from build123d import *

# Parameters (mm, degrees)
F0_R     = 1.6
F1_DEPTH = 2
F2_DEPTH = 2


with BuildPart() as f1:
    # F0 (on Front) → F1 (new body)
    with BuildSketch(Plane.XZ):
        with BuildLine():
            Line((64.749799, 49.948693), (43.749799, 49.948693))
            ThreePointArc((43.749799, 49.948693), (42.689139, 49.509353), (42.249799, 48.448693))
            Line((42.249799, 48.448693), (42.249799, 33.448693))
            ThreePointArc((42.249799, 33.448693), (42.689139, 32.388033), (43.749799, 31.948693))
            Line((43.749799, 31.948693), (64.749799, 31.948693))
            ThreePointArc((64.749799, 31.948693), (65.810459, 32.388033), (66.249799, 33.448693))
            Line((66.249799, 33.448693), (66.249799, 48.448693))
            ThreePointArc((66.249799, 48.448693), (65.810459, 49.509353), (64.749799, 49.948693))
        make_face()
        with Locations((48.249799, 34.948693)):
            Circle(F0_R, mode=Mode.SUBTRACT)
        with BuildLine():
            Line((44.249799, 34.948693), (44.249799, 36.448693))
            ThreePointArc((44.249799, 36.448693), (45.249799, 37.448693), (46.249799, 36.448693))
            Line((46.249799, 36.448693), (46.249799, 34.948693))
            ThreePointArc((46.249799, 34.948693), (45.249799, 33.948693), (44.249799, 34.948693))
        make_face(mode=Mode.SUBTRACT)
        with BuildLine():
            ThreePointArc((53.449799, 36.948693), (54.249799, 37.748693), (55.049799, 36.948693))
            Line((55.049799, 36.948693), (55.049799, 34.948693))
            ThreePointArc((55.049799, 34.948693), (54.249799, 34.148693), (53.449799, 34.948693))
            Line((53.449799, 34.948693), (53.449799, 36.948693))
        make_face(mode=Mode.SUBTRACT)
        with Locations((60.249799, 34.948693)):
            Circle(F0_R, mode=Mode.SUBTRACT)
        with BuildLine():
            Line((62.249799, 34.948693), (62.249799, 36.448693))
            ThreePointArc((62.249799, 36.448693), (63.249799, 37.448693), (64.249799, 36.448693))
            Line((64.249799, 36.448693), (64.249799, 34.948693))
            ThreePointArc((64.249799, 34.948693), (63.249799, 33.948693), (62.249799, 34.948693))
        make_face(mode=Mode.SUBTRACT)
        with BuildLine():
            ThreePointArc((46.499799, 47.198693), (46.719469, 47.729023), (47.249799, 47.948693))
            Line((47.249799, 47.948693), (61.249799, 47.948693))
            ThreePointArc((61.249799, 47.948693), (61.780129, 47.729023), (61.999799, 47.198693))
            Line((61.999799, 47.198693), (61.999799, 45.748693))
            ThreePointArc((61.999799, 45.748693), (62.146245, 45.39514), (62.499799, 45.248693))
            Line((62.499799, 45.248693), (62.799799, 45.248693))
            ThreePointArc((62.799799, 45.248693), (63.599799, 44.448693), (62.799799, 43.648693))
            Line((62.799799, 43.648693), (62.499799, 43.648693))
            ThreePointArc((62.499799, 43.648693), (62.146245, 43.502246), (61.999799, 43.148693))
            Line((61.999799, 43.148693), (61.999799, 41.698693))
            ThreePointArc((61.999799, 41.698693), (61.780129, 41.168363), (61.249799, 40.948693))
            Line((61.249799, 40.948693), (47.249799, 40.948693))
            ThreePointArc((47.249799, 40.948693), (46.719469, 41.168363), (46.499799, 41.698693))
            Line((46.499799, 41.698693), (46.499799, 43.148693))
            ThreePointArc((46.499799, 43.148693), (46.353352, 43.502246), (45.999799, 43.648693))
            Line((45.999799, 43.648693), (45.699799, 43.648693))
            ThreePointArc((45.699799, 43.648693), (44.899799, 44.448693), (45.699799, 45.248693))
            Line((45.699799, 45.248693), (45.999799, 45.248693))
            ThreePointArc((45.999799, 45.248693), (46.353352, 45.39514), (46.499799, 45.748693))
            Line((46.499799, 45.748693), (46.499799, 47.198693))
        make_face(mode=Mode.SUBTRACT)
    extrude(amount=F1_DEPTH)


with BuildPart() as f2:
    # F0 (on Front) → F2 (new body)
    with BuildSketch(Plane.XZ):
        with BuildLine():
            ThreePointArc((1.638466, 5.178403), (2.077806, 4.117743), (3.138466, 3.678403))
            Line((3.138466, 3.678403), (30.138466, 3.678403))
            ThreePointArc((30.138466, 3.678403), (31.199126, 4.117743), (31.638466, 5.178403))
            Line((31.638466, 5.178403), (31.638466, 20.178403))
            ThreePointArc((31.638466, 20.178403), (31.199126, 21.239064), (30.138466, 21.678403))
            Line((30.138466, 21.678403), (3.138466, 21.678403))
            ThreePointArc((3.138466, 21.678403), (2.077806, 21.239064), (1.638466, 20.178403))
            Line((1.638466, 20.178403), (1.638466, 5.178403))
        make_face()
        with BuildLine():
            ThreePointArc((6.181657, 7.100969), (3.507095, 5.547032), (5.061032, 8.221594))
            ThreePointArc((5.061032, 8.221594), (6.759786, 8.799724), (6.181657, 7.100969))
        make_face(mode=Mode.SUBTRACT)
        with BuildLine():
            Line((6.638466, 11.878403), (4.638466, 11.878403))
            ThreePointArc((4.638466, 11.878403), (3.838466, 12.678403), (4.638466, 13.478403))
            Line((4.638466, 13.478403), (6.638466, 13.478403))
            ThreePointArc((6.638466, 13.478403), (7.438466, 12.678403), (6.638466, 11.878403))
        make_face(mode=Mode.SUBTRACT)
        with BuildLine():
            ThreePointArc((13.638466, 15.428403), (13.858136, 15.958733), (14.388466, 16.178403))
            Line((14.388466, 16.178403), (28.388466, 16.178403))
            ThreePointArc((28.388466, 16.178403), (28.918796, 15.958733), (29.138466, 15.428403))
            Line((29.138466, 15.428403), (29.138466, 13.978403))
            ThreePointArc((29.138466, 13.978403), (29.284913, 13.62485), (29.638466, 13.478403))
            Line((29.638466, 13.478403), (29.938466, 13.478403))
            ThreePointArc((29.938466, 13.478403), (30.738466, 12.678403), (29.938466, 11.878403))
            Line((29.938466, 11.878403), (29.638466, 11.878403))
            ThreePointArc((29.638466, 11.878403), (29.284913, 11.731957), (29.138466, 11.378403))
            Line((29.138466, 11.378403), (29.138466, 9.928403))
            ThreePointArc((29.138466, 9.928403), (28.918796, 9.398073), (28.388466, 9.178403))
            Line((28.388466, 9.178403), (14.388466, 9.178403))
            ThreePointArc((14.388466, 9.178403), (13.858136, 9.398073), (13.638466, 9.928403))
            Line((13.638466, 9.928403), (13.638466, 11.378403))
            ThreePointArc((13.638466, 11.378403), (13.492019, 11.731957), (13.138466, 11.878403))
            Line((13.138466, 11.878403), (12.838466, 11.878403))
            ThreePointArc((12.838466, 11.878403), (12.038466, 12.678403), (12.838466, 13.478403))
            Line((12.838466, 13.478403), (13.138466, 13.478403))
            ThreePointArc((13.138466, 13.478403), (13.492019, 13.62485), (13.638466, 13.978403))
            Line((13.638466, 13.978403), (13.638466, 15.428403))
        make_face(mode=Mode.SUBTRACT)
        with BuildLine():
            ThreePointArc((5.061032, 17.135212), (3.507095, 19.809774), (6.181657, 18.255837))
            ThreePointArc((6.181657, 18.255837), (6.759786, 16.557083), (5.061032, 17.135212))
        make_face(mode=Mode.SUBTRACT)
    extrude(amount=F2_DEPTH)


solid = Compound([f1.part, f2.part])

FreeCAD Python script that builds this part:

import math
import FreeCAD as App
import Part
import Sketcher
Q = App.Units.Quantity

doc = App.newDocument("Part")
body = doc.addObject("PartDesign::Body", "Body")

# Sketch on XZ plane
sketch1 = body.newObject("Sketcher::SketchObject", "Sketch")
sketch1.AttachmentSupport = (doc.getObject("XZ_Plane"), [""])
sketch1.MapMode = "FlatFace"
sketch1.addGeometry(Part.LineSegment(App.Vector(64.749799, 49.948693, 0), App.Vector(43.749799, 49.948693, 0)), False)
sketch1.addGeometry(Part.ArcOfCircle(Part.Circle(App.Vector(43.7498, 48.448692, 0), App.Vector(0, 0, 1), 1.500001), math.radians(90.000022), math.radians(179.999978)), False)
sketch1.addGeometry(Part.LineSegment(App.Vector(42.249799, 48.448693, 0), App.Vector(42.249799, 33.448693, 0)), False)
sketch1.addGeometry(Part.ArcOfCircle(Part.Circle(App.Vector(43.7498, 33.448694, 0), App.Vector(0, 0, 1), 1.500001), math.radians(-179.999978), math.radians(-90.000022)), False)
sketch1.addGeometry(Part.LineSegment(App.Vector(43.749799, 31.948693, 0), App.Vector(64.749799, 31.948693, 0)), False)
sketch1.addGeometry(Part.ArcOfCircle(Part.Circle(App.Vector(64.749798, 33.448694, 0), App.Vector(0, 0, 1), 1.500001), math.radians(-89.999978), math.radians(-0.000022)), False)
sketch1.addGeometry(Part.LineSegment(App.Vector(66.249799, 33.448693, 0), App.Vector(66.249799, 48.448693, 0)), False)
sketch1.addGeometry(Part.ArcOfCircle(Part.Circle(App.Vector(64.749798, 48.448692, 0), App.Vector(0, 0, 1), 1.500001), math.radians(0.000022), math.radians(89.999978)), False)
sketch1.addGeometry(Part.Circle(App.Vector(48.249799, 34.948693, 0), App.Vector(0, 0, 1), 1.6), False)
sketch1.addGeometry(Part.ArcOfCircle(Part.Circle(App.Vector(45.249799, 34.948693, 0), App.Vector(0, 0, 1), 1), math.radians(180), math.radians(360)), False)
sketch1.addGeometry(Part.LineSegment(App.Vector(44.249799, 34.948693, 0), App.Vector(44.249799, 36.448693, 0)), False)
sketch1.addGeometry(Part.ArcOfCircle(Part.Circle(App.Vector(45.249799, 36.448693, 0), App.Vector(0, 0, 1), 1), math.radians(0), math.radians(180)), False)
sketch1.addGeometry(Part.LineSegment(App.Vector(46.249799, 36.448693, 0), App.Vector(46.249799, 34.948693, 0)), False)
sketch1.addGeometry(Part.LineSegment(App.Vector(53.449799, 34.948693, 0), App.Vector(53.449799, 36.948693, 0)), False)
sketch1.addGeometry(Part.ArcOfCircle(Part.Circle(App.Vector(54.249799, 36.948693, 0), App.Vector(0, 0, 1), 0.8), math.radians(0), math.radians(180)), False)
sketch1.addGeometry(Part.LineSegment(App.Vector(55.049799, 36.948693, 0), App.Vector(55.049799, 34.948693, 0)), False)
sketch1.addGeometry(Part.ArcOfCircle(Part.Circle(App.Vector(54.249799, 34.948693, 0), App.Vector(0, 0, 1), 0.8), math.radians(180), math.radians(360)), False)
sketch1.addGeometry(Part.Circle(App.Vector(60.249799, 34.948693, 0), App.Vector(0, 0, 1), 1.6), False)
sketch1.addGeometry(Part.ArcOfCircle(Part.Circle(App.Vector(63.249799, 34.948693, 0), App.Vector(0, 0, 1), 1), math.radians(180), math.radians(360)), False)
sketch1.addGeometry(Part.LineSegment(App.Vector(62.249799, 34.948693, 0), App.Vector(62.249799, 36.448693, 0)), False)
sketch1.addGeometry(Part.ArcOfCircle(Part.Circle(App.Vector(63.249799, 36.448693, 0), App.Vector(0, 0, 1), 1), math.radians(0), math.radians(180)), False)
sketch1.addGeometry(Part.LineSegment(App.Vector(64.249799, 36.448693, 0), App.Vector(64.249799, 34.948693, 0)), False)
sketch1.addGeometry(Part.LineSegment(App.Vector(46.499799, 45.748693, 0), App.Vector(46.499799, 47.198693, 0)), False)
sketch1.addGeometry(Part.ArcOfCircle(Part.Circle(App.Vector(47.249799, 47.198693, 0), App.Vector(0, 0, 1), 0.75), math.radians(90.000022), math.radians(179.999978)), False)
sketch1.addGeometry(Part.LineSegment(App.Vector(47.249799, 47.948693, 0), App.Vector(61.249799, 47.948693, 0)), False)
sketch1.addGeometry(Part.ArcOfCircle(Part.Circle(App.Vector(61.249799, 47.198693, 0), App.Vector(0, 0, 1), 0.75), math.radians(0.000022), math.radians(89.999978)), False)
sketch1.addGeometry(Part.LineSegment(App.Vector(61.999799, 47.198693, 0), App.Vector(61.999799, 45.748693, 0)), False)
sketch1.addGeometry(Part.ArcOfCircle(Part.Circle(App.Vector(62.499799, 45.748693, 0), App.Vector(0, 0, 1), 0.5), math.radians(179.999957), math.radians(270.000043)), False)
sketch1.addGeometry(Part.LineSegment(App.Vector(62.499799, 45.248693, 0), App.Vector(62.799799, 45.248693, 0)), False)
sketch1.addGeometry(Part.ArcOfCircle(Part.Circle(App.Vector(62.799799, 44.448693, 0), App.Vector(0, 0, 1), 0.8), math.radians(-90), math.radians(90)), False)
sketch1.addGeometry(Part.LineSegment(App.Vector(62.799799, 43.648693, 0), App.Vector(62.499799, 43.648693, 0)), False)
sketch1.addGeometry(Part.ArcOfCircle(Part.Circle(App.Vector(62.499799, 43.148693, 0), App.Vector(0, 0, 1), 0.5), math.radians(89.999957), math.radians(180.000043)), False)
sketch1.addGeometry(Part.LineSegment(App.Vector(61.999799, 43.148693, 0), App.Vector(61.999799, 41.698693, 0)), False)
sketch1.addGeometry(Part.ArcOfCircle(Part.Circle(App.Vector(61.249799, 41.698693, 0), App.Vector(0, 0, 1), 0.75), math.radians(-89.999978), math.radians(-0.000022)), False)
sketch1.addGeometry(Part.LineSegment(App.Vector(61.249799, 40.948693, 0), App.Vector(47.249799, 40.948693, 0)), False)
sketch1.addGeometry(Part.ArcOfCircle(Part.Circle(App.Vector(47.249799, 41.698693, 0), App.Vector(0, 0, 1), 0.75), math.radians(-179.999978), math.radians(-90.000022)), False)
sketch1.addGeometry(Part.LineSegment(App.Vector(46.499799, 41.698693, 0), App.Vector(46.499799, 43.148693, 0)), False)
sketch1.addGeometry(Part.ArcOfCircle(Part.Circle(App.Vector(45.999798, 43.148692, 0), App.Vector(0, 0, 1), 0.500001), math.radians(0.000153), math.radians(89.999847)), False)
sketch1.addGeometry(Part.LineSegment(App.Vector(45.999799, 43.648693, 0), App.Vector(45.699799, 43.648693, 0)), False)
sketch1.addGeometry(Part.ArcOfCircle(Part.Circle(App.Vector(45.699799, 44.448693, 0), App.Vector(0, 0, 1), 0.8), math.radians(90), math.radians(270)), False)
sketch1.addGeometry(Part.LineSegment(App.Vector(45.699799, 45.248693, 0), App.Vector(45.999799, 45.248693, 0)), False)
sketch1.addGeometry(Part.ArcOfCircle(Part.Circle(App.Vector(45.999798, 45.748694, 0), App.Vector(0, 0, 1), 0.500001), math.radians(-89.999847), math.radians(-0.000153)), False)
sketch1.addConstraint(Sketcher.Constraint("Tangent", 0, 2, 1, 1))
sketch1.addConstraint(Sketcher.Constraint("Tangent", 1, 2, 2, 1))
sketch1.addConstraint(Sketcher.Constraint("Tangent", 2, 2, 3, 1))
sketch1.addConstraint(Sketcher.Constraint("Tangent", 3, 2, 4, 1))
sketch1.addConstraint(Sketcher.Constraint("Tangent", 4, 2, 5, 1))
sketch1.addConstraint(Sketcher.Constraint("Tangent", 5, 2, 6, 1))
sketch1.addConstraint(Sketcher.Constraint("Tangent", 6, 2, 7, 1))
sketch1.addConstraint(Sketcher.Constraint("Tangent", 7, 2, 0, 1))
sketch1.addConstraint(Sketcher.Constraint("Tangent", 9, 1, 10, 1))
sketch1.addConstraint(Sketcher.Constraint("Tangent", 10, 2, 11, 2))
sketch1.addConstraint(Sketcher.Constraint("Tangent", 11, 1, 12, 1))
sketch1.addConstraint(Sketcher.Constraint("Tangent", 12, 2, 9, 2))
sketch1.addConstraint(Sketcher.Constraint("Tangent", 13, 2, 14, 2))
sketch1.addConstraint(Sketcher.Constraint("Tangent", 14, 1, 15, 1))
sketch1.addConstraint(Sketcher.Constraint("Tangent", 15, 2, 16, 2))
sketch1.addConstraint(Sketcher.Constraint("Tangent", 16, 1, 13, 1))
sketch1.addConstraint(Sketcher.Constraint("Tangent", 18, 1, 19, 1))
sketch1.addConstraint(Sketcher.Constraint("Tangent", 19, 2, 20, 2))
sketch1.addConstraint(Sketcher.Constraint("Tangent", 20, 1, 21, 1))
sketch1.addConstraint(Sketcher.Constraint("Tangent", 21, 2, 18, 2))
sketch1.addConstraint(Sketcher.Constraint("Tangent", 22, 2, 23, 2))
sketch1.addConstraint(Sketcher.Constraint("Tangent", 23, 1, 24, 1))
sketch1.addConstraint(Sketcher.Constraint("Tangent", 24, 2, 25, 2))
sketch1.addConstraint(Sketcher.Constraint("Tangent", 25, 1, 26, 1))
sketch1.addConstraint(Sketcher.Constraint("Tangent", 26, 2, 27, 1))
sketch1.addConstraint(Sketcher.Constraint("Tangent", 27, 2, 28, 1))
sketch1.addConstraint(Sketcher.Constraint("Tangent", 28, 2, 29, 2))
sketch1.addConstraint(Sketcher.Constraint("Tangent", 29, 1, 30, 1))
sketch1.addConstraint(Sketcher.Constraint("Tangent", 30, 2, 31, 1))
sketch1.addConstraint(Sketcher.Constraint("Tangent", 31, 2, 32, 1))
sketch1.addConstraint(Sketcher.Constraint("Tangent", 32, 2, 33, 2))
sketch1.addConstraint(Sketcher.Constraint("Tangent", 33, 1, 34, 1))
sketch1.addConstraint(Sketcher.Constraint("Tangent", 34, 2, 35, 2))
sketch1.addConstraint(Sketcher.Constraint("Tangent", 35, 1, 36, 1))
sketch1.addConstraint(Sketcher.Constraint("Coincident", 36, 2, 37, 1))
sketch1.addConstraint(Sketcher.Constraint("Coincident", 37, 2, 38, 1))
sketch1.addConstraint(Sketcher.Constraint("Tangent", 38, 2, 39, 2))
sketch1.addConstraint(Sketcher.Constraint("Tangent", 39, 1, 40, 1))
sketch1.addConstraint(Sketcher.Constraint("Coincident", 40, 2, 41, 1))
sketch1.addConstraint(Sketcher.Constraint("Coincident", 41, 2, 22, 1))
sketch1.addConstraint(Sketcher.Constraint("Horizontal", 0))
sketch1.addConstraint(Sketcher.Constraint("Vertical", 2))
sketch1.addConstraint(Sketcher.Constraint("Horizontal", 4))
sketch1.addConstraint(Sketcher.Constraint("Vertical", 6))
sketch1.addConstraint(Sketcher.Constraint("Vertical", 10))
sketch1.addConstraint(Sketcher.Constraint("Vertical", 12))
sketch1.addConstraint(Sketcher.Constraint("Vertical", 13))
sketch1.addConstraint(Sketcher.Constraint("Vertical", 15))
sketch1.addConstraint(Sketcher.Constraint("Vertical", 19))
sketch1.addConstraint(Sketcher.Constraint("Vertical", 21))
sketch1.addConstraint(Sketcher.Constraint("Vertical", 22))
sketch1.addConstraint(Sketcher.Constraint("Horizontal", 24))
sketch1.addConstraint(Sketcher.Constraint("Vertical", 26))
sketch1.addConstraint(Sketcher.Constraint("Horizontal", 28))
sketch1.addConstraint(Sketcher.Constraint("Horizontal", 30))
sketch1.addConstraint(Sketcher.Constraint("Vertical", 32))
sketch1.addConstraint(Sketcher.Constraint("Horizontal", 34))
sketch1.addConstraint(Sketcher.Constraint("Vertical", 36))
sketch1.addConstraint(Sketcher.Constraint("Horizontal", 38))
sketch1.addConstraint(Sketcher.Constraint("Horizontal", 40))
sketch1.addConstraint(Sketcher.Constraint("Equal", 1, 3))
sketch1.addConstraint(Sketcher.Constraint("Equal", 3, 5))
sketch1.addConstraint(Sketcher.Constraint("Equal", 5, 7))
sketch1.addConstraint(Sketcher.Constraint("Equal", 8, 17))
sketch1.addConstraint(Sketcher.Constraint("Equal", 11, 18))
sketch1.addConstraint(Sketcher.Constraint("Equal", 23, 25))
sketch1.addConstraint(Sketcher.Constraint("Equal", 16, 29))
sketch1.addConstraint(Sketcher.Constraint("Equal", 27, 31))
sketch1.addConstraint(Sketcher.Constraint("Equal", 25, 33))
sketch1.addConstraint(Sketcher.Constraint("Equal", 33, 35))
sketch1.addConstraint(Sketcher.Constraint("Equal", 31, 37))
sketch1.addConstraint(Sketcher.Constraint("Equal", 29, 39))
sketch1.addConstraint(Sketcher.Constraint("Equal", 37, 41))
sketch1.addConstraint(Sketcher.Constraint("Horizontal", 8, 3, 9, 3))
sketch1.addConstraint(Sketcher.Constraint("Horizontal", 9, 3, 16, 3))
sketch1.addConstraint(Sketcher.Constraint("Horizontal", 16, 3, 17, 3))
sketch1.addConstraint(Sketcher.Constraint("Horizontal", 17, 3, 18, 3))
sketch1.addConstraint(Sketcher.Constraint("Horizontal", 11, 3, 20, 3))
sketch1.addConstraint(Sketcher.Constraint("Horizontal", 31, 3, 37, 3))
sketch1.addConstraint(Sketcher.Constraint("Horizontal", 31, 2, 36, 2))
sketch1.addConstraint(Sketcher.Constraint("Horizontal", 26, 2, 41, 2))
sketch1.addConstraint(Sketcher.Constraint("Vertical", 27, 3, 31, 3))
sketch1.addConstraint(Sketcher.Constraint("Vertical", 23, 3, 35, 3))
sketch1.addConstraint(Sketcher.Constraint("Vertical", 41, 3, 37, 2))
sketch1.addConstraint(Sketcher.Constraint("Vertical", 37, 2, 40, 2))
sketch1.addConstraint(Sketcher.Constraint("Equal", 30, 38))
sketch1.addConstraint(Sketcher.Constraint("Equal", 26, 32))
sketch1.addConstraint(Sketcher.Constraint("Radius", 9, Q("1 mm")))
sketch1.addConstraint(Sketcher.Constraint("Diameter", 8, Q("3.2 mm")))
sketch1.addConstraint(Sketcher.Constraint("Radius", 1, Q("1.500001 mm")))
sketch1.addConstraint(Sketcher.Constraint("Radius", 14, Q("0.8 mm")))
sketch1.addConstraint(Sketcher.Constraint("Radius", 27, Q("0.5 mm")))
sketch1.addConstraint(Sketcher.Constraint("DistanceX", 0, 2, 0, 1, Q("21 mm")))
sketch1.addConstraint(Sketcher.Constraint("DistanceX", 24, 1, 24, 2, Q("14 mm")))
sketch1.addConstraint(Sketcher.Constraint("DistanceY", 2, 2, 2, 1, Q("15 mm")))
sketch1.addConstraint(Sketcher.Constraint("DistanceY", 13, 1, 13, 2, Q("2 mm")))
sketch1.addConstraint(Sketcher.Constraint("Radius", 23, Q("0.75 mm")))
sketch1.addConstraint(Sketcher.Constraint("DistanceX", 28, 1, 28, 2, Q("0.3 mm")))
sketch1.addConstraint(Sketcher.Constraint("DistanceY", 10, 1, 10, 2, Q("1.5 mm")))
sketch1.addConstraint(Sketcher.Constraint("DistanceY", 22, 1, 22, 2, Q("1.45 mm")))
sketch1.addConstraint(Sketcher.Constraint("DistanceX", -1, 1, 1, 3, Q("43.7498 mm")))
sketch1.addConstraint(Sketcher.Constraint("DistanceX", -1, 1, 8, 3, Q("48.249799 mm")))
sketch1.addConstraint(Sketcher.Constraint("DistanceX", -1, 1, 9, 3, Q("45.249799 mm")))
sketch1.addConstraint(Sketcher.Constraint("DistanceX", -1, 1, 14, 3, Q("54.249799 mm")))
sketch1.addConstraint(Sketcher.Constraint("DistanceX", -1, 1, 17, 3, Q("60.249799 mm")))
sketch1.addConstraint(Sketcher.Constraint("DistanceX", -1, 1, 18, 3, Q("63.249799 mm")))
sketch1.addConstraint(Sketcher.Constraint("DistanceX", -1, 1, 23, 3, Q("47.249799 mm")))
sketch1.addConstraint(Sketcher.Constraint("DistanceY", -1, 1, 37, 3, Q("43.148692 mm")))
sketch1.addConstraint(Sketcher.Constraint("DistanceY", -1, 1, 1, 3, Q("48.448692 mm")))
sketch1.addConstraint(Sketcher.Constraint("DistanceY", -1, 1, 8, 3, Q("34.948693 mm")))
pad1 = body.newObject("PartDesign::Pad", "Pad")
pad1.Profile = sketch1
pad1.Length = 2
body2 = doc.addObject("PartDesign::Body", "Body001")

# Sketch on XZ plane
sketch2 = body2.newObject("Sketcher::SketchObject", "Sketch001")
sketch2.AttachmentSupport = (doc.getObject("XZ_Plane001"), [""])
sketch2.MapMode = "FlatFace"
sketch2.addGeometry(Part.ArcOfCircle(Part.Circle(App.Vector(3.138467, 5.178404, 0), App.Vector(0, 0, 1), 1.500001), math.radians(-179.999978), math.radians(-90.000022)), False)
sketch2.addGeometry(Part.LineSegment(App.Vector(3.138466, 3.678403, 0), App.Vector(30.138466, 3.678403, 0)), False)
sketch2.addGeometry(Part.ArcOfCircle(Part.Circle(App.Vector(30.138465, 5.178404, 0), App.Vector(0, 0, 1), 1.500001), math.radians(-89.999978), math.radians(-0.000022)), False)
sketch2.addGeometry(Part.LineSegment(App.Vector(31.638466, 5.178403, 0), App.Vector(31.638466, 20.178403, 0)), False)
sketch2.addGeometry(Part.ArcOfCircle(Part.Circle(App.Vector(30.138467, 20.178404, 0), App.Vector(0, 0, 1), 1.499999), math.radians(-0.000043), math.radians(90.000043)), False)
sketch2.addGeometry(Part.LineSegment(App.Vector(30.138466, 21.678403, 0), App.Vector(3.138466, 21.678403, 0)), False)
sketch2.addGeometry(Part.ArcOfCircle(Part.Circle(App.Vector(3.138465, 20.178404, 0), App.Vector(0, 0, 1), 1.499999), math.radians(89.999957), math.radians(180.000043)), False)
sketch2.addGeometry(Part.LineSegment(App.Vector(1.638466, 20.178403, 0), App.Vector(1.638466, 5.178403, 0)), False)
sketch2.addGeometry(Part.ArcOfCircle(Part.Circle(App.Vector(6.05268, 8.092617, 0), App.Vector(0, 0, 1), 1), math.radians(-82.589499), math.radians(172.589499)), False)
sketch2.addGeometry(Part.ArcOfCircle(Part.Circle(App.Vector(4.638466, 6.678403, 0), App.Vector(0, 0, 1), 1.6), math.radians(74.686297), math.radians(375.313703)), False)
sketch2.addGeometry(Part.ArcOfCircle(Part.Circle(App.Vector(6.638466, 12.678403, 0), App.Vector(0, 0, 1), 0.8), math.radians(-90), math.radians(90)), False)
sketch2.addGeometry(Part.LineSegment(App.Vector(6.638466, 11.878403, 0), App.Vector(4.638466, 11.878403, 0)), False)
sketch2.addGeometry(Part.ArcOfCircle(Part.Circle(App.Vector(4.638466, 12.678403, 0), App.Vector(0, 0, 1), 0.8), math.radians(90), math.radians(270)), False)
sketch2.addGeometry(Part.LineSegment(App.Vector(4.638466, 13.478403, 0), App.Vector(6.638466, 13.478403, 0)), False)
sketch2.addGeometry(Part.ArcOfCircle(Part.Circle(App.Vector(6.052679, 17.26419, 0), App.Vector(0, 0, 1), 1), math.radians(-172.589479), math.radians(82.589479)), False)
sketch2.addGeometry(Part.ArcOfCircle(Part.Circle(App.Vector(4.638466, 18.678403, 0), App.Vector(0, 0, 1), 1.6), math.radians(-15.313703), math.radians(285.313703)), False)
sketch2.addGeometry(Part.LineSegment(App.Vector(13.638466, 13.978403, 0), App.Vector(13.638466, 15.428403, 0)), False)
sketch2.addGeometry(Part.ArcOfCircle(Part.Circle(App.Vector(14.388466, 15.428403, 0), App.Vector(0, 0, 1), 0.75), math.radians(90.000022), math.radians(179.999978)), False)
sketch2.addGeometry(Part.LineSegment(App.Vector(14.388466, 16.178403, 0), App.Vector(28.388466, 16.178403, 0)), False)
sketch2.addGeometry(Part.ArcOfCircle(Part.Circle(App.Vector(28.388466, 15.428403, 0), App.Vector(0, 0, 1), 0.75), math.radians(0.000022), math.radians(89.999978)), False)
sketch2.addGeometry(Part.LineSegment(App.Vector(29.138466, 15.428403, 0), App.Vector(29.138466, 13.978403, 0)), False)
sketch2.addGeometry(Part.ArcOfCircle(Part.Circle(App.Vector(29.638467, 13.978404, 0), App.Vector(0, 0, 1), 0.500001), math.radians(-179.999847), math.radians(-90.000153)), False)
sketch2.addGeometry(Part.LineSegment(App.Vector(29.638466, 13.478403, 0), App.Vector(29.938466, 13.478403, 0)), False)
sketch2.addGeometry(Part.ArcOfCircle(Part.Circle(App.Vector(29.938466, 12.678403, 0), App.Vector(0, 0, 1), 0.8), math.radians(-90), math.radians(90)), False)
sketch2.addGeometry(Part.LineSegment(App.Vector(29.938466, 11.878403, 0), App.Vector(29.638466, 11.878403, 0)), False)
sketch2.addGeometry(Part.ArcOfCircle(Part.Circle(App.Vector(29.638466, 11.378403, 0), App.Vector(0, 0, 1), 0.5), math.radians(89.999957), math.radians(180.000043)), False)
sketch2.addGeometry(Part.LineSegment(App.Vector(29.138466, 11.378403, 0), App.Vector(29.138466, 9.928403, 0)), False)
sketch2.addGeometry(Part.ArcOfCircle(Part.Circle(App.Vector(28.388466, 9.928403, 0), App.Vector(0, 0, 1), 0.75), math.radians(-89.999978), math.radians(-0.000022)), False)
sketch2.addGeometry(Part.LineSegment(App.Vector(28.388466, 9.178403, 0), App.Vector(14.388466, 9.178403, 0)), False)
sketch2.addGeometry(Part.ArcOfCircle(Part.Circle(App.Vector(14.388466, 9.928403, 0), App.Vector(0, 0, 1), 0.75), math.radians(-179.999978), math.radians(-90.000022)), False)
sketch2.addGeometry(Part.LineSegment(App.Vector(13.638466, 9.928403, 0), App.Vector(13.638466, 11.378403, 0)), False)
sketch2.addGeometry(Part.ArcOfCircle(Part.Circle(App.Vector(13.138466, 11.378403, 0), App.Vector(0, 0, 1), 0.5), math.radians(-0.000043), math.radians(90.000043)), False)
sketch2.addGeometry(Part.LineSegment(App.Vector(13.138466, 11.878403, 0), App.Vector(12.838466, 11.878403, 0)), False)
sketch2.addGeometry(Part.ArcOfCircle(Part.Circle(App.Vector(12.838466, 12.678403, 0), App.Vector(0, 0, 1), 0.8), math.radians(90), math.radians(270)), False)
sketch2.addGeometry(Part.LineSegment(App.Vector(12.838466, 13.478403, 0), App.Vector(13.138466, 13.478403, 0)), False)
sketch2.addGeometry(Part.ArcOfCircle(Part.Circle(App.Vector(13.138465, 13.978404, 0), App.Vector(0, 0, 1), 0.500001), math.radians(-89.999847), math.radians(-0.000153)), False)
sketch2.addConstraint(Sketcher.Constraint("Tangent", 0, 2, 1, 1))
sketch2.addConstraint(Sketcher.Constraint("Tangent", 1, 2, 2, 1))
sketch2.addConstraint(Sketcher.Constraint("Tangent", 2, 2, 3, 1))
sketch2.addConstraint(Sketcher.Constraint("Tangent", 3, 2, 4, 1))
sketch2.addConstraint(Sketcher.Constraint("Tangent", 4, 2, 5, 1))
sketch2.addConstraint(Sketcher.Constraint("Tangent", 5, 2, 6, 1))
sketch2.addConstraint(Sketcher.Constraint("Tangent", 6, 2, 7, 1))
sketch2.addConstraint(Sketcher.Constraint("Tangent", 7, 2, 0, 1))
sketch2.addConstraint(Sketcher.Constraint("Coincident", 8, 1, 9, 2))
sketch2.addConstraint(Sketcher.Constraint("Coincident", 9, 1, 8, 2))
sketch2.addConstraint(Sketcher.Constraint("Tangent", 10, 1, 11, 1))
sketch2.addConstraint(Sketcher.Constraint("Tangent", 11, 2, 12, 2))
sketch2.addConstraint(Sketcher.Constraint("Tangent", 12, 1, 13, 1))
sketch2.addConstraint(Sketcher.Constraint("Tangent", 13, 2, 10, 2))
sketch2.addConstraint(Sketcher.Constraint("Coincident", 14, 1, 15, 2))
sketch2.addConstraint(Sketcher.Constraint("Coincident", 15, 1, 14, 2))
sketch2.addConstraint(Sketcher.Constraint("Tangent", 16, 2, 17, 2))
sketch2.addConstraint(Sketcher.Constraint("Tangent", 17, 1, 18, 1))
sketch2.addConstraint(Sketcher.Constraint("Tangent", 18, 2, 19, 2))
sketch2.addConstraint(Sketcher.Constraint("Tangent", 19, 1, 20, 1))
sketch2.addConstraint(Sketcher.Constraint("Coincident", 20, 2, 21, 1))
sketch2.addConstraint(Sketcher.Constraint("Coincident", 21, 2, 22, 1))
sketch2.addConstraint(Sketcher.Constraint("Tangent", 22, 2, 23, 2))
sketch2.addConstraint(Sketcher.Constraint("Tangent", 23, 1, 24, 1))
sketch2.addConstraint(Sketcher.Constraint("Tangent", 24, 2, 25, 1))
sketch2.addConstraint(Sketcher.Constraint("Tangent", 25, 2, 26, 1))
sketch2.addConstraint(Sketcher.Constraint("Tangent", 26, 2, 27, 2))
sketch2.addConstraint(Sketcher.Constraint("Tangent", 27, 1, 28, 1))
sketch2.addConstraint(Sketcher.Constraint("Tangent", 28, 2, 29, 2))
sketch2.addConstraint(Sketcher.Constraint("Tangent", 29, 1, 30, 1))
sketch2.addConstraint(Sketcher.Constraint("Tangent", 30, 2, 31, 1))
sketch2.addConstraint(Sketcher.Constraint("Tangent", 31, 2, 32, 1))
sketch2.addConstraint(Sketcher.Constraint("Tangent", 32, 2, 33, 2))
sketch2.addConstraint(Sketcher.Constraint("Tangent", 33, 1, 34, 1))
sketch2.addConstraint(Sketcher.Constraint("Coincident", 34, 2, 35, 1))
sketch2.addConstraint(Sketcher.Constraint("Coincident", 35, 2, 16, 1))
sketch2.addConstraint(Sketcher.Constraint("Horizontal", 1))
sketch2.addConstraint(Sketcher.Constraint("Vertical", 3))
sketch2.addConstraint(Sketcher.Constraint("Horizontal", 5))
sketch2.addConstraint(Sketcher.Constraint("Vertical", 7))
sketch2.addConstraint(Sketcher.Constraint("Horizontal", 11))
sketch2.addConstraint(Sketcher.Constraint("Horizontal", 13))
sketch2.addConstraint(Sketcher.Constraint("Vertical", 16))
sketch2.addConstraint(Sketcher.Constraint("Horizontal", 18))
sketch2.addConstraint(Sketcher.Constraint("Vertical", 20))
sketch2.addConstraint(Sketcher.Constraint("Horizontal", 22))
sketch2.addConstraint(Sketcher.Constraint("Horizontal", 24))
sketch2.addConstraint(Sketcher.Constraint("Vertical", 26))
sketch2.addConstraint(Sketcher.Constraint("Horizontal", 28))
sketch2.addConstraint(Sketcher.Constraint("Vertical", 30))
sketch2.addConstraint(Sketcher.Constraint("Horizontal", 32))
sketch2.addConstraint(Sketcher.Constraint("Horizontal", 34))
sketch2.addConstraint(Sketcher.Constraint("Equal", 0, 2))
sketch2.addConstraint(Sketcher.Constraint("Equal", 2, 4))
sketch2.addConstraint(Sketcher.Constraint("Equal", 4, 6))
sketch2.addConstraint(Sketcher.Constraint("Equal", 8, 14))
sketch2.addConstraint(Sketcher.Constraint("Equal", 9, 15))
sketch2.addConstraint(Sketcher.Constraint("Equal", 17, 19))
sketch2.addConstraint(Sketcher.Constraint("Equal", 12, 23))
sketch2.addConstraint(Sketcher.Constraint("Equal", 21, 25))
sketch2.addConstraint(Sketcher.Constraint("Equal", 19, 27))
sketch2.addConstraint(Sketcher.Constraint("Equal", 27, 29))
sketch2.addConstraint(Sketcher.Constraint("Equal", 25, 31))
sketch2.addConstraint(Sketcher.Constraint("Equal", 23, 33))
sketch2.addConstraint(Sketcher.Constraint("Equal", 31, 35))
sketch2.addConstraint(Sketcher.Constraint("Horizontal", 12, 3, 23, 3))
sketch2.addConstraint(Sketcher.Constraint("Horizontal", 25, 3, 31, 3))
sketch2.addConstraint(Sketcher.Constraint("Horizontal", 35, 3, 20, 2))
sketch2.addConstraint(Sketcher.Constraint("Horizontal", 20, 2, 35, 2))
sketch2.addConstraint(Sketcher.Constraint("Vertical", 9, 3, 12, 3))
sketch2.addConstraint(Sketcher.Constraint("Vertical", 8, 3, 14, 3))
sketch2.addConstraint(Sketcher.Constraint("Vertical", 12, 3, 15, 3))
sketch2.addConstraint(Sketcher.Constraint("Vertical", 21, 3, 25, 3))
sketch2.addConstraint(Sketcher.Constraint("Vertical", 17, 3, 29, 3))
sketch2.addConstraint(Sketcher.Constraint("Vertical", 9, 1, 14, 1))
sketch2.addConstraint(Sketcher.Constraint("Vertical", 25, 3, 21, 2))
sketch2.addConstraint(Sketcher.Constraint("Vertical", 31, 2, 34, 2))
sketch2.addConstraint(Sketcher.Constraint("Equal", 24, 32))
sketch2.addConstraint(Sketcher.Constraint("Equal", 20, 26))
sketch2.addConstraint(Sketcher.Constraint("Radius", 8, Q("1 mm")))
sketch2.addConstraint(Sketcher.Constraint("Radius", 0, Q("1.500001 mm")))
sketch2.addConstraint(Sketcher.Constraint("Radius", 9, Q("1.6 mm")))
sketch2.addConstraint(Sketcher.Constraint("Radius", 10, Q("0.8 mm")))
sketch2.addConstraint(Sketcher.Constraint("Radius", 21, Q("0.500001 mm")))
sketch2.addConstraint(Sketcher.Constraint("DistanceX", 1, 1, 1, 2, Q("27 mm")))
sketch2.addConstraint(Sketcher.Constraint("DistanceX", 11, 2, 11, 1, Q("2 mm")))
sketch2.addConstraint(Sketcher.Constraint("DistanceX", 18, 1, 18, 2, Q("14 mm")))
sketch2.addConstraint(Sketcher.Constraint("DistanceY", 3, 1, 3, 2, Q("15 mm")))
sketch2.addConstraint(Sketcher.Constraint("Radius", 17, Q("0.75 mm")))
sketch2.addConstraint(Sketcher.Constraint("DistanceX", 22, 1, 22, 2, Q("0.3 mm")))
sketch2.addConstraint(Sketcher.Constraint("DistanceY", 9, 3, 10, 3, Q("6 mm")))
sketch2.addConstraint(Sketcher.Constraint("DistanceY", 12, 3, 15, 3, Q("6 mm")))
sketch2.addConstraint(Sketcher.Constraint("DistanceX", 10, 3, 21, 3, Q("23.000001 mm")))
sketch2.addConstraint(Sketcher.Constraint("DistanceY", 0, 2, 9, 3, Q("3 mm")))
sketch2.addConstraint(Sketcher.Constraint("DistanceX", 25, 3, 2, 2, Q("2 mm")))
sketch2.addConstraint(Sketcher.Constraint("DistanceY", 18, 2, 4, 3, Q("4.000001 mm")))
sketch2.addConstraint(Sketcher.Constraint("DistanceX", -1, 1, 8, 3, Q("6.05268 mm")))
sketch2.addConstraint(Sketcher.Constraint("DistanceY", -1, 1, 14, 3, Q("17.26419 mm")))
sketch2.addConstraint(Sketcher.Constraint("DistanceY", -1, 1, 8, 1, Q("7.100969 mm")))
sketch2.addConstraint(Sketcher.Constraint("DistanceX", -1, 1, 9, 1, Q("5.061032 mm")))
pad2 = body2.newObject("PartDesign::Pad", "Pad001")
pad2.Profile = sketch2
pad2.Length = 2

doc.recompute()
